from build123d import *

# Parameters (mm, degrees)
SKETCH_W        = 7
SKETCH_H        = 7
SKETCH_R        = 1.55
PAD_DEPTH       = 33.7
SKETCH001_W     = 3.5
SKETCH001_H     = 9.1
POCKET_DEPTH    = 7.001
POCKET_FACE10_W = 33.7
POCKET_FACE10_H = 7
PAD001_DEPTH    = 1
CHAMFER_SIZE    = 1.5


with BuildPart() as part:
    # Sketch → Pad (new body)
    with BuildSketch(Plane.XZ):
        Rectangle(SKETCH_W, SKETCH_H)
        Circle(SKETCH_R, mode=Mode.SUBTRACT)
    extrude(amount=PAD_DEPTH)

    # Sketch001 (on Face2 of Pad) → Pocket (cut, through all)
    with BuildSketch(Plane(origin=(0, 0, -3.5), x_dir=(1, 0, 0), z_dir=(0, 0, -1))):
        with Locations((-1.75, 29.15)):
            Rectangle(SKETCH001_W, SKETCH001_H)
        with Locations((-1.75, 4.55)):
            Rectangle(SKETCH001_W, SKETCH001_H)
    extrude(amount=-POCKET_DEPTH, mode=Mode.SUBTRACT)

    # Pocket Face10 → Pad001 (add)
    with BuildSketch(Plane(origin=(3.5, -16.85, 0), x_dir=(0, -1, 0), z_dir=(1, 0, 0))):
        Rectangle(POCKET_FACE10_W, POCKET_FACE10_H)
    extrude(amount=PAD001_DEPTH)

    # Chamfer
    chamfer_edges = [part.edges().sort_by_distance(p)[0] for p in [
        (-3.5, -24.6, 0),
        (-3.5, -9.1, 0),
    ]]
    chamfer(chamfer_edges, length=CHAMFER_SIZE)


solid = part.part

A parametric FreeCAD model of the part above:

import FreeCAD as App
import Part
import Sketcher
from FreeCAD import Vector


def edges_at(feature, points):
    """Names of the edges that pass closest to the given points."""
    edges = feature.Shape.Edges
    near = lambda p: min(range(len(edges)), key=lambda i: edges[i].distToShape(Part.Vertex(*p))[0])
    return sorted({f"Edge{near(p) + 1}" for p in points})


def add_polygon(sketch, points):
    """Adds a closed chain of lines whose ends are joined by coincident constraints."""
    first, n = sketch.GeometryCount, len(points)
    for a, b in zip(points, points[1:] + points[:1]):
        sketch.addGeometry(Part.LineSegment(App.Vector(*a, 0), App.Vector(*b, 0)), False)
    for i in range(n):
        sketch.addConstraint(Sketcher.Constraint("Coincident", first + i, 2, first + (i + 1) % n, 1))

doc = App.newDocument("Part")
body = doc.addObject("PartDesign::Body", "Body")

sketch1 = body.newObject("Sketcher::SketchObject", "Sketch")
sketch1.AttachmentSupport = (doc.getObject("XZ_Plane"), [""])
sketch1.MapMode = "FlatFace"
add_polygon(sketch1, [(-3.5, 3.5), (-3.5, -3.5), (3.5, -3.5), (3.5, 3.5)])
sketch1.addGeometry(Part.Circle(Vector(0, 0, 0), Vector(0, 0, 1), 1.6), False)
sketch1.addConstraint([
    Sketcher.Constraint("Vertical", 0),
    Sketcher.Constraint("Horizontal", 1),
    Sketcher.Constraint("Vertical", 2),
    Sketcher.Constraint("Horizontal", 3),
    Sketcher.Constraint("Coincident", 4, 3, -1, 1),
    Sketcher.Constraint("Symmetric", 0, 2, 2, 2, -1, 1),
    Sketcher.Constraint("Equal", 3, 0),
    Sketcher.Constraint("Diameter", 4, 3.1),
    Sketcher.Constraint("DistanceX", 1, 1, 1, 2, 7.0),
])
pad1 = body.newObject("PartDesign::Pad", "Pad")
pad1.Profile = sketch1
pad1.Length = 33.7

sketch2 = body.newObject("Sketcher::SketchObject", "Sketch001")
sketch2.AttachmentSupport = (doc.getObject("XY_Plane"), [""])
sketch2.MapMode = "FlatFace"
sketch2.AttachmentOffset = App.Placement(Vector(0, 0, -3.5), App.Rotation())
add_polygon(sketch2, [(-3.5, -33.7), (-3.5, -24.6), (0, -24.6), (0, -33.7)])
add_polygon(sketch2, [(-3.5, -9.1), (-3.5, 0), (0, 0), (0, -9.1)])
sketch2.addConstraint([
    Sketcher.Constraint("Vertical", 0),
    Sketcher.Constraint("Horizontal", 1),
    Sketcher.Constraint("Vertical", 2),
    Sketcher.Constraint("Horizontal", 3),
    Sketcher.Constraint("Vertical", 4),
    Sketcher.Constraint("Horizontal", 5),
    Sketcher.Constraint("Vertical", 6),
    Sketcher.Constraint("Horizontal", 7),
    Sketcher.Constraint("Coincident", 5, 2, -1, 1),
    Sketcher.Constraint("PointOnObject", 1, 2, -2),
    Sketcher.Constraint("Vertical", 3, 2, 4, 2),
    Sketcher.Constraint("Equal", 2, 4),
    Sketcher.Constraint("DistanceX", 1, 1, 1, 2, 3.5),
    Sketcher.Constraint("DistanceY", 0, 1, 0, 2, 9.1),
    Sketcher.Constraint("DistanceY", 0, 2, -1, 1, 24.6),
])
pocket1 = body.newObject("PartDesign::Pocket", "Pocket")
pocket1.Profile = sketch2
pocket1.Type = "ThroughAll"
pocket1.Reversed = True

sketch3 = body.newObject("Sketcher::SketchObject", "Sketch002")
sketch3.AttachmentSupport = (doc.getObject("YZ_Plane"), [""])
sketch3.MapMode = "FlatFace"
sketch3.AttachmentOffset = App.Placement(Vector(0, 0, 3.5), App.Rotation())
add_polygon(sketch3, [(0, -4), (0, 4), (-34, 4), (-34, -4)])
sketch3.addConstraint([
    Sketcher.Constraint("Vertical", 0),
    Sketcher.Constraint("Horizontal", 1),
    Sketcher.Constraint("Vertical", 2),
    Sketcher.Constraint("Horizontal", 3),
    Sketcher.Constraint("Symmetric", 0, 2, 3, 2, -1, 1),
    Sketcher.Constraint("DistanceY", 0, 1, 0, 2, 7.0),
    Sketcher.Constraint("DistanceX", 1, 2, 1, 1, 33.7),
])
pad2 = body.newObject("PartDesign::Pad", "Pad001")
pad2.Profile = sketch3
pad2.Length = 1
doc.recompute()

chamfer = body.newObject("PartDesign::Chamfer", "Chamfer")
chamfer.Base = (pad2, edges_at(pad2, [(-3.5, -24.6, 0), (-3.5, -9.1, 0)]))
chamfer.Size = 1.5

doc.recompute()
